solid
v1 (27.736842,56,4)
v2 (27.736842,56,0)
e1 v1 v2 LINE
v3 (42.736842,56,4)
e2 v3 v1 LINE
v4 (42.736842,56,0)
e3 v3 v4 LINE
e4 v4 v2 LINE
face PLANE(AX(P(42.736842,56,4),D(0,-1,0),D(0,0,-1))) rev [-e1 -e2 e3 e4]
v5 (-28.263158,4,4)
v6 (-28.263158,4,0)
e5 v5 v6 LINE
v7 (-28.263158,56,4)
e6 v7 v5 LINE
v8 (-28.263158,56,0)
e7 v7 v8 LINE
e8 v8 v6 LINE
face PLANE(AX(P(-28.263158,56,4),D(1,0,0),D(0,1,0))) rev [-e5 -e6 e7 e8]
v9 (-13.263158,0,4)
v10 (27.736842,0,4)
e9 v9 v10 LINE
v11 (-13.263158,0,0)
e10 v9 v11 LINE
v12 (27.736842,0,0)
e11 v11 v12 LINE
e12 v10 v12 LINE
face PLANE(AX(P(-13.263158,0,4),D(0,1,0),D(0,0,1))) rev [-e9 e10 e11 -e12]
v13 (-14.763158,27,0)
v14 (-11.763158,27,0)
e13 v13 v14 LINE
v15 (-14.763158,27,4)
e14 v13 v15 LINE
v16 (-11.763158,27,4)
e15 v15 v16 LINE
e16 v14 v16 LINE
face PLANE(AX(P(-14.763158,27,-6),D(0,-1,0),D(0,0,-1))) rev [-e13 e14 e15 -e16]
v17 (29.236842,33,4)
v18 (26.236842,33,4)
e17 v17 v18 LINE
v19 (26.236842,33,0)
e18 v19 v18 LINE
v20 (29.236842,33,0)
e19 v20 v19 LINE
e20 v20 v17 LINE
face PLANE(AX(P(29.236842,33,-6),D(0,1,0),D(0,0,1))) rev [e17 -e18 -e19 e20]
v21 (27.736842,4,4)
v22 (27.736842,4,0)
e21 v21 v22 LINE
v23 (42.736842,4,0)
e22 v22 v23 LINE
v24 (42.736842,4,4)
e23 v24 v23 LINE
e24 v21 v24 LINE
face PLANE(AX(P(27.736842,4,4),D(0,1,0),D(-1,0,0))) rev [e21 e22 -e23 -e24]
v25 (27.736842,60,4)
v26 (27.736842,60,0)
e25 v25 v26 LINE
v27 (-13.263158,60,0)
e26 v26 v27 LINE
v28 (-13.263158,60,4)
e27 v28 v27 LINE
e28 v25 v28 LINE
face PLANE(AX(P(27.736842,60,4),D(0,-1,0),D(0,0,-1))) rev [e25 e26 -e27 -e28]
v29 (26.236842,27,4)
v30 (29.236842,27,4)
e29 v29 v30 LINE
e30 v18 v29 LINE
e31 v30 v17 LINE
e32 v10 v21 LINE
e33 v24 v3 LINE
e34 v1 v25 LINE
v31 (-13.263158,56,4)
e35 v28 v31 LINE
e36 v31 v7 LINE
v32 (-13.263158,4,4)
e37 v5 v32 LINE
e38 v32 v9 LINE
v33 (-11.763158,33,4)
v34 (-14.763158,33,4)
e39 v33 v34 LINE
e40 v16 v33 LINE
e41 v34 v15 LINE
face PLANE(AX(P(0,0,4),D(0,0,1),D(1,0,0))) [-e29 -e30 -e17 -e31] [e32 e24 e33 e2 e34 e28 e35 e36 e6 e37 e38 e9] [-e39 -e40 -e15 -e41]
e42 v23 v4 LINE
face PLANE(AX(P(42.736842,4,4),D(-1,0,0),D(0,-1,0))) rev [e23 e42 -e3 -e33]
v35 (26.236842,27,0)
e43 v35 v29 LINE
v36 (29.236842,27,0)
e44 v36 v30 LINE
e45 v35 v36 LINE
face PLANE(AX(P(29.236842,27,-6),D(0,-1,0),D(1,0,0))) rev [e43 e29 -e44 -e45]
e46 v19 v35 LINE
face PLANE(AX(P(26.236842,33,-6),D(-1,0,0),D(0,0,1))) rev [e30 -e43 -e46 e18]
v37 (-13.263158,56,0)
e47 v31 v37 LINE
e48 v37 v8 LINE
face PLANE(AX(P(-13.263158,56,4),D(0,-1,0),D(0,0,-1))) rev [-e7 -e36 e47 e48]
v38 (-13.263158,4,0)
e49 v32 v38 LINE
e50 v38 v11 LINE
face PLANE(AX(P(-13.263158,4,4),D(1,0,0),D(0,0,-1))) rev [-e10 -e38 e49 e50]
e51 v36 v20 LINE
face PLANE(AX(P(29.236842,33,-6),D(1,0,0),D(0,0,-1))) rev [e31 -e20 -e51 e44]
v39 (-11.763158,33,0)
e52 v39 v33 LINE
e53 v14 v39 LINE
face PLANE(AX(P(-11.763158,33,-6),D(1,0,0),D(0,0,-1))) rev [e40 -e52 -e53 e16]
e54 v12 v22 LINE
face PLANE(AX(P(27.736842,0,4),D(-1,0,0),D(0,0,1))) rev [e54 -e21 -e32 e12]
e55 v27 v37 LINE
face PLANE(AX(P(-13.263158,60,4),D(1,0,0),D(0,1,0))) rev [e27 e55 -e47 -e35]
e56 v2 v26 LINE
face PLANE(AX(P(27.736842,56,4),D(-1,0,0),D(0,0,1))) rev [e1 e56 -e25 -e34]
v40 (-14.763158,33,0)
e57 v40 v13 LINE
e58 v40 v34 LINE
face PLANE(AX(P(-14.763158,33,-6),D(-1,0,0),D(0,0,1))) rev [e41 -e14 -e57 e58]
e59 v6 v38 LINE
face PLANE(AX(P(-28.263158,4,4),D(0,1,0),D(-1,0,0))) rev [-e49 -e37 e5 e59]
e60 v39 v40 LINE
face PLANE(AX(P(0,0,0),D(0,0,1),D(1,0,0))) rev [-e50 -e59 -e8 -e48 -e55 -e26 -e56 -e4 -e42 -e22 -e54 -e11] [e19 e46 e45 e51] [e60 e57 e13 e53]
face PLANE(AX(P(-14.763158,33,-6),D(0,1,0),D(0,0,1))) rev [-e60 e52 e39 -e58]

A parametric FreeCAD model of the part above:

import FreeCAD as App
import Part
import Sketcher

V = App.Vector
Q = App.Units.Quantity

doc = App.newDocument("Part")
body = doc.addObject("PartDesign::Body", "Body")

# Sketch on XY plane
sketch1 = body.newObject("Sketcher::SketchObject", "Sketch")
sketch1.AttachmentSupport = (doc.getObject("XY_Plane"), [""])
sketch1.MapMode = "FlatFace"
sketch1.addGeometry(Part.LineSegment(V(-13.3, 0, 0), V(27.7, 0, 0)), False)
sketch1.addGeometry(Part.LineSegment(V(27.7, 0, 0), V(27.7, 4, 0)), False)
sketch1.addGeometry(Part.LineSegment(V(27.7, 4, 0), V(42.7, 4, 0)), False)
sketch1.addGeometry(Part.LineSegment(V(42.7, 4, 0), V(42.7, 56, 0)), False)
sketch1.addGeometry(Part.LineSegment(V(42.7, 56, 0), V(27.7, 56, 0)), False)
sketch1.addGeometry(Part.LineSegment(V(27.7, 56, 0), V(27.7, 60, 0)), False)
sketch1.addGeometry(Part.LineSegment(V(27.7, 60, 0), V(-13.3, 60, 0)), False)
sketch1.addGeometry(Part.LineSegment(V(-13.3, 60, 0), V(-13.3, 56, 0)), False)
sketch1.addGeometry(Part.LineSegment(V(-13.3, 56, 0), V(-28.3, 56, 0)), False)
sketch1.addGeometry(Part.LineSegment(V(-28.3, 56, 0), V(-28.3, 4, 0)), False)
sketch1.addGeometry(Part.LineSegment(V(-28.3, 4, 0), V(-13.3, 4, 0)), False)
sketch1.addGeometry(Part.LineSegment(V(-13.3, 4, 0), V(-13.3, 0, 0)), False)
sketch1.addConstraint(Sketcher.Constraint("Coincident", 0, 2, 1, 1))
sketch1.addConstraint(Sketcher.Constraint("Coincident", 1, 2, 2, 1))
sketch1.addConstraint(Sketcher.Constraint("Coincident", 2, 2, 3, 1))
sketch1.addConstraint(Sketcher.Constraint("Coincident", 3, 2, 4, 1))
sketch1.addConstraint(Sketcher.Constraint("Coincident", 4, 2, 5, 1))
sketch1.addConstraint(Sketcher.Constraint("Coincident", 5, 2, 6, 1))
sketch1.addConstraint(Sketcher.Constraint("Coincident", 6, 2, 7, 1))
sketch1.addConstraint(Sketcher.Constraint("Coincident", 7, 2, 8, 1))
sketch1.addConstraint(Sketcher.Constraint("Coincident", 8, 2, 9, 1))
sketch1.addConstraint(Sketcher.Constraint("Coincident", 9, 2, 10, 1))
sketch1.addConstraint(Sketcher.Constraint("Coincident", 10, 2, 11, 1))
sketch1.addConstraint(Sketcher.Constraint("Coincident", 11, 2, 0, 1))
sketch1.addConstraint(Sketcher.Constraint("Horizontal", 0))
sketch1.addConstraint(Sketcher.Constraint("Vertical", 1))
sketch1.addConstraint(Sketcher.Constraint("Horizontal", 2))
sketch1.addConstraint(Sketcher.Constraint("Vertical", 3))
sketch1.addConstraint(Sketcher.Constraint("Horizontal", 4))
sketch1.addConstraint(Sketcher.Constraint("Vertical", 5))
sketch1.addConstraint(Sketcher.Constraint("Horizontal", 6))
sketch1.addConstraint(Sketcher.Constraint("Vertical", 7))
sketch1.addConstraint(Sketcher.Constraint("Horizontal", 8))
sketch1.addConstraint(Sketcher.Constraint("Vertical", 9))
sketch1.addConstraint(Sketcher.Constraint("Horizontal", 10))
sketch1.addConstraint(Sketcher.Constraint("Vertical", 11))
sketch1.addConstraint(Sketcher.Constraint("PointOnObject", 0, 2, -1))
sketch1.addConstraint(Sketcher.Constraint("Horizontal", 4, 2, 7, 2))
sketch1.addConstraint(Sketcher.Constraint("Horizontal", 2, 2, 9, 2))
sketch1.addConstraint(Sketcher.Constraint("Vertical", 1, 2, 4, 2))
sketch1.addConstraint(Sketcher.Constraint("Vertical", 7, 2, 10, 2))
sketch1.addConstraint(Sketcher.Constraint("Equal", 4, 8))
sketch1.addConstraint(Sketcher.Constraint("Equal", 1, 5))
sketch1.addConstraint(Sketcher.Constraint("DistanceX", 0, 1, 0, 2, Q("41 mm")))
sketch1.addConstraint(Sketcher.Constraint("DistanceX", 2, 1, 2, 2, Q("15 mm")))
sketch1.addConstraint(Sketcher.Constraint("DistanceY", 1, 1, 1, 2, Q("4 mm")))
sketch1.addConstraint(Sketcher.Constraint("DistanceY", 3, 1, 3, 2, Q("52 mm")))
sketch1.addConstraint(Sketcher.Constraint("DistanceX", -1, 1, 0, 2, Q("27.736842 mm")))
pad1 = body.newObject("PartDesign::Pad", "Pad")
pad1.Profile = sketch1
pad1.Length = 4

# Sketch on XY plane
sketch2 = body.newObject("Sketcher::SketchObject", "Sketch001")
sketch2.AttachmentSupport = (doc.getObject("XY_Plane"), [""])
sketch2.MapMode = "FlatFace"
sketch2.AttachmentOffset = App.Placement(V(0, 0, 4), App.Rotation())
sketch2.addGeometry(Part.LineSegment(V(-14.8, 33, 0), V(-14.8, 27, 0)), False)
sketch2.addGeometry(Part.LineSegment(V(-14.8, 27, 0), V(-11.8, 27, 0)), False)
sketch2.addGeometry(Part.LineSegment(V(-11.8, 27, 0), V(-11.8, 33, 0)), False)
sketch2.addGeometry(Part.LineSegment(V(-11.8, 33, 0), V(-14.8, 33, 0)), False)
sketch2.addGeometry(Part.LineSegment(V(26.2, 33, 0), V(26.2, 27, 0)), False)
sketch2.addGeometry(Part.LineSegment(V(26.2, 27, 0), V(29.2, 27, 0)), False)
sketch2.addGeometry(Part.LineSegment(V(29.2, 27, 0), V(29.2, 33, 0)), False)
sketch2.addGeometry(Part.LineSegment(V(29.2, 33, 0), V(26.2, 33, 0)), False)
sketch2.addConstraint(Sketcher.Constraint("Coincident", 0, 2, 1, 1))
sketch2.addConstraint(Sketcher.Constraint("Coincident", 1, 2, 2, 1))
sketch2.addConstraint(Sketcher.Constraint("Coincident", 2, 2, 3, 1))
sketch2.addConstraint(Sketcher.Constraint("Coincident", 3, 2, 0, 1))
sketch2.addConstraint(Sketcher.Constraint("Coincident", 4, 2, 5, 1))
sketch2.addConstraint(Sketcher.Constraint("Coincident", 5, 2, 6, 1))
sketch2.addConstraint(Sketcher.Constraint("Coincident", 6, 2, 7, 1))
sketch2.addConstraint(Sketcher.Constraint("Coincident", 7, 2, 4, 1))
sketch2.addConstraint(Sketcher.Constraint("Vertical", 0))
sketch2.addConstraint(Sketcher.Constraint("Horizontal", 1))
sketch2.addConstraint(Sketcher.Constraint("Vertical", 2))
sketch2.addConstraint(Sketcher.Constraint("Horizontal", 3))
sketch2.addConstraint(Sketcher.Constraint("Vertical", 4))
sketch2.addConstraint(Sketcher.Constraint("Horizontal", 5))
sketch2.addConstraint(Sketcher.Constraint("Vertical", 6))
sketch2.addConstraint(Sketcher.Constraint("Horizontal", 7))
sketch2.addConstraint(Sketcher.Constraint("Horizontal", 1, 2, 4, 2))
sketch2.addConstraint(Sketcher.Constraint("Horizontal", 3, 2, 6, 2))
sketch2.addConstraint(Sketcher.Constraint("Equal", 3, 5))
sketch2.addConstraint(Sketcher.Constraint("DistanceX", 1, 1, 1, 2, Q("3 mm")))
sketch2.addConstraint(Sketcher.Constraint("DistanceY", 0, 2, 0, 1, Q("6 mm")))
sketch2.addConstraint(Sketcher.Constraint("DistanceY", -1, 1, 0, 2, Q("27 mm")))
sketch2.addConstraint(Sketcher.Constraint("DistanceX", 1, 2, 4, 2, Q("38 mm")))
sketch2.addConstraint(Sketcher.Constraint("DistanceX", 0, 2, -1, 1, Q("14.763158 mm")))
pocket1 = body.newObject("PartDesign::Pocket", "Pocket")
pocket1.Profile = sketch2
pocket1.Length = 10

doc.recompute()
